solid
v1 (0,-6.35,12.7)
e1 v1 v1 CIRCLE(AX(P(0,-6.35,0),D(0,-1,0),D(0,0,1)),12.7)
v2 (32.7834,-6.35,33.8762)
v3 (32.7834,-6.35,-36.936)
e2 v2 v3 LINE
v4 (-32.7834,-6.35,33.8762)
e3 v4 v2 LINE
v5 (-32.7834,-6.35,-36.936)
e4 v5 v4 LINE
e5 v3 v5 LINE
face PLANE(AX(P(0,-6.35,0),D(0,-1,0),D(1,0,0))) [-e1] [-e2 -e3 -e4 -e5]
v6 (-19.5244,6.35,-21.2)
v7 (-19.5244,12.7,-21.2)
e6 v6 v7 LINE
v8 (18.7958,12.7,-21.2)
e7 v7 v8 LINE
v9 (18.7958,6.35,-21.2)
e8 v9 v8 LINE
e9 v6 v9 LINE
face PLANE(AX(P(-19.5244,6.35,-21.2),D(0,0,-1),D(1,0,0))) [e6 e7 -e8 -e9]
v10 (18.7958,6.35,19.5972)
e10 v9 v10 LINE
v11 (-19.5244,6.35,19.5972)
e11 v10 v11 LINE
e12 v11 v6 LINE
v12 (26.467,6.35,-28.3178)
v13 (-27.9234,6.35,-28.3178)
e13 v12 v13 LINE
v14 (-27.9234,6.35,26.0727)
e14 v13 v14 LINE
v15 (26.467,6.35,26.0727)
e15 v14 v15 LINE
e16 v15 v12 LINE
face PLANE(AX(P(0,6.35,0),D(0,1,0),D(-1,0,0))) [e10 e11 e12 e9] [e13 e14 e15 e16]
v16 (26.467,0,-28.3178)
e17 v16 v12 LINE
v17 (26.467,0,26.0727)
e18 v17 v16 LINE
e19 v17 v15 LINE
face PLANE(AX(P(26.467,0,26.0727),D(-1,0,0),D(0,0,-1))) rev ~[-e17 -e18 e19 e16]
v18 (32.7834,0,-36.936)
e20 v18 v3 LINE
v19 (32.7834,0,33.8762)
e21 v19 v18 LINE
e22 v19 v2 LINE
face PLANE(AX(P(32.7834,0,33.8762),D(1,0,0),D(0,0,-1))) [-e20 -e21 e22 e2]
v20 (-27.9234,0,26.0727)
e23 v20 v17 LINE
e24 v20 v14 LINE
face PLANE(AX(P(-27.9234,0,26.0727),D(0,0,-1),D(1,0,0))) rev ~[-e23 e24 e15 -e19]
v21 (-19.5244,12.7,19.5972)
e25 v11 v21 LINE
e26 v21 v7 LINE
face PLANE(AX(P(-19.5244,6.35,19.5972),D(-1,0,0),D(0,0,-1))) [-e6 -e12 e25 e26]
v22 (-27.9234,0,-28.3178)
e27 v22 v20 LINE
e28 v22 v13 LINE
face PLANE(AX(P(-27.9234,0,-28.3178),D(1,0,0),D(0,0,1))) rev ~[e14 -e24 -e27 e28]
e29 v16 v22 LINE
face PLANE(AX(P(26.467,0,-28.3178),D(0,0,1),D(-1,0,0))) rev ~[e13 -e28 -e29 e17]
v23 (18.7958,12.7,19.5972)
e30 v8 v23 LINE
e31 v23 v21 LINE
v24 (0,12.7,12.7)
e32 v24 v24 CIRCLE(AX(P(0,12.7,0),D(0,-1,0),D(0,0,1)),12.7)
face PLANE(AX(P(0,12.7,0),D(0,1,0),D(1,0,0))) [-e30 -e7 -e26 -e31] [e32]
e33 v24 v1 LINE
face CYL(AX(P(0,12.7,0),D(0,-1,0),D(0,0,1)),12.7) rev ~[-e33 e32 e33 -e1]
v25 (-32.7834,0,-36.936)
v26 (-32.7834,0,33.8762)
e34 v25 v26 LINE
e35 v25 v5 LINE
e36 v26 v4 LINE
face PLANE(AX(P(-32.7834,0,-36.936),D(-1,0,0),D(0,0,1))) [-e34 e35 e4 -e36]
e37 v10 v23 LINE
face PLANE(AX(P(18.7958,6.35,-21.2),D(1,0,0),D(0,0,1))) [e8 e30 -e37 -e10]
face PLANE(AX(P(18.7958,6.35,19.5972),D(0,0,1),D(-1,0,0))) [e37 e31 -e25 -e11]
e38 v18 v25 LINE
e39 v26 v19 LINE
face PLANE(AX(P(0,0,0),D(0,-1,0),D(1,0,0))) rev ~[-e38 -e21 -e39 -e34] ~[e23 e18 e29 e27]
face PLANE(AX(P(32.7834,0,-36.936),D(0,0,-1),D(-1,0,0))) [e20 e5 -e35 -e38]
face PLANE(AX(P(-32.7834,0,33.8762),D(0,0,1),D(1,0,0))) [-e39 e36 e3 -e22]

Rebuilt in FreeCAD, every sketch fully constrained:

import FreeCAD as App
import Part
import Sketcher

V = App.Vector
Q = App.Units.Quantity

doc = App.newDocument("Part")
body = doc.addObject("PartDesign::Body", "Body")

sketch1 = body.newObject("Sketcher::SketchObject", "Sketch")
sketch1.AttachmentSupport = (doc.getObject("XZ_Plane"), [""])
sketch1.MapMode = "FlatFace"
sketch1.addGeometry([
    Part.LineSegment(V(-27.9234, -28.3178, 0), V(-27.9234, 26.0727, 0)),
    Part.LineSegment(V(-27.9234, 26.0727, 0), V(26.467, 26.0727, 0)),
    Part.LineSegment(V(26.467, 26.0727, 0), V(26.467, -28.3178, 0)),
    Part.LineSegment(V(26.467, -28.3178, 0), V(-27.9234, -28.3178, 0)),
], False)
sketch1.addConstraint([
    Sketcher.Constraint("Coincident", 0, 2, 1, 1),
    Sketcher.Constraint("Coincident", 1, 2, 2, 1),
    Sketcher.Constraint("Coincident", 2, 2, 3, 1),
    Sketcher.Constraint("Coincident", 3, 2, 0, 1),
    Sketcher.Constraint("Vertical", 0),
    Sketcher.Constraint("Horizontal", 1),
    Sketcher.Constraint("Vertical", 2),
    Sketcher.Constraint("Horizontal", 3),
    Sketcher.Constraint("Equal", 3, 0),
    Sketcher.Constraint("DistanceX", -1, 1, 1, 2, Q("1.042 in")),
    Sketcher.Constraint("DistanceX", 1, 1, 1, 2, Q("54.3904 mm")),
    Sketcher.Constraint("DistanceY", -1, 1, 0, 2, Q("26.0727 mm")),
])
pad1 = body.newObject("PartDesign::Pad", "Pad")
pad1.Profile = sketch1
pad1.Length = Q("0.25 in")
pad1.Reversed = True

sketch2 = body.newObject("Sketcher::SketchObject", "Sketch001")
sketch2.AttachmentSupport = (doc.getObject("XZ_Plane"), [""])
sketch2.MapMode = "FlatFace"
sketch2.addGeometry([
    Part.LineSegment(V(32.7834, 33.8762, 0), V(-32.7834, 33.8762, 0)),
    Part.LineSegment(V(-32.7834, 33.8762, 0), V(-32.7834, -36.936, 0)),
    Part.LineSegment(V(-32.7834, -36.936, 0), V(32.7834, -36.936, 0)),
    Part.LineSegment(V(32.7834, -36.936, 0), V(32.7834, 33.8762, 0)),
], False)
sketch2.addConstraint([
    Sketcher.Constraint("Coincident", 0, 2, 1, 1),
    Sketcher.Constraint("Coincident", 1, 2, 2, 1),
    Sketcher.Constraint("Coincident", 2, 2, 3, 1),
    Sketcher.Constraint("Coincident", 3, 2, 0, 1),
    Sketcher.Constraint("Horizontal", 0),
    Sketcher.Constraint("Vertical", 1),
    Sketcher.Constraint("Horizontal", 2),
    Sketcher.Constraint("Vertical", 3),
    Sketcher.Constraint("DistanceX", 0, 2, 0, 1, Q("65.5668 mm")),
    Sketcher.Constraint("DistanceY", 1, 2, 1, 1, Q("70.8122 mm")),
    Sketcher.Constraint("DistanceY", -1, 1, 0, 2, Q("1.3337 in")),
    Sketcher.Constraint("DistanceX", 0, 2, -1, 1, Q("32.7834 mm")),
])
pad2 = body.newObject("PartDesign::Pad", "Pad001")
pad2.Profile = sketch2
pad2.Length = Q("0.25 in")

sketch3 = body.newObject("Sketcher::SketchObject", "Sketch002")
sketch3.AttachmentSupport = (doc.getObject("XZ_Plane"), [""])
sketch3.MapMode = "FlatFace"
sketch3.AttachmentOffset = App.Placement(V(0, 0, -0.25 * 25.4), App.Rotation())
sketch3.addGeometry([
    Part.LineSegment(V(18.7958, -21.2, 0), V(-19.5244, -21.2, 0)),
    Part.LineSegment(V(-19.5244, -21.2, 0), V(-19.5244, 19.5972, 0)),
    Part.LineSegment(V(-19.5244, 19.5972, 0), V(18.7958, 19.5972, 0)),
    Part.LineSegment(V(18.7958, 19.5972, 0), V(18.7958, -21.2, 0)),
], False)
sketch3.addConstraint([
    Sketcher.Constraint("Coincident", 0, 2, 1, 1),
    Sketcher.Constraint("Coincident", 1, 2, 2, 1),
    Sketcher.Constraint("Coincident", 2, 2, 3, 1),
    Sketcher.Constraint("Coincident", 3, 2, 0, 1),
    Sketcher.Constraint("Horizontal", 0),
    Sketcher.Constraint("Vertical", 1),
    Sketcher.Constraint("Horizontal", 2),
    Sketcher.Constraint("Vertical", 3),
    Sketcher.Constraint("DistanceX", -1, 1, 2, 2, Q("0.74 in")),
    Sketcher.Constraint("DistanceY", 1, 1, 1, 2, Q("1.6062 in")),
    Sketcher.Constraint("DistanceX", 0, 2, 0, 1, Q("38.3202 mm")),
    Sketcher.Constraint("DistanceY", 0, 2, -1, 1, Q("21.2 mm")),
])
pad3 = body.newObject("PartDesign::Pad", "Pad002")
pad3.Profile = sketch3
pad3.Length = Q("0.25 in")
pad3.Reversed = True

sketch4 = body.newObject("Sketcher::SketchObject", "Sketch003")
sketch4.AttachmentSupport = (doc.getObject("XZ_Plane"), [""])
sketch4.MapMode = "FlatFace"
sketch4.AttachmentOffset = App.Placement(V(0, 0, -0.5 * 25.4), App.Rotation())
sketch4.addGeometry(Part.Circle(V(0, 0, 0), V(0, 0, 1), 12.7), False)
sketch4.addConstraint([
    Sketcher.Constraint("Coincident", 0, 3, -1, 1),
    Sketcher.Constraint("Diameter", 0, Q("1 in")),
])
doc.recompute()
hole = body.newObject("PartDesign::Hole", "Hole")
hole.Profile = sketch4
hole.ThreadType = "None"
hole.Diameter = Q("1 in")
hole.DepthType = "ThroughAll"
hole.Reversed = True

doc.recompute()
